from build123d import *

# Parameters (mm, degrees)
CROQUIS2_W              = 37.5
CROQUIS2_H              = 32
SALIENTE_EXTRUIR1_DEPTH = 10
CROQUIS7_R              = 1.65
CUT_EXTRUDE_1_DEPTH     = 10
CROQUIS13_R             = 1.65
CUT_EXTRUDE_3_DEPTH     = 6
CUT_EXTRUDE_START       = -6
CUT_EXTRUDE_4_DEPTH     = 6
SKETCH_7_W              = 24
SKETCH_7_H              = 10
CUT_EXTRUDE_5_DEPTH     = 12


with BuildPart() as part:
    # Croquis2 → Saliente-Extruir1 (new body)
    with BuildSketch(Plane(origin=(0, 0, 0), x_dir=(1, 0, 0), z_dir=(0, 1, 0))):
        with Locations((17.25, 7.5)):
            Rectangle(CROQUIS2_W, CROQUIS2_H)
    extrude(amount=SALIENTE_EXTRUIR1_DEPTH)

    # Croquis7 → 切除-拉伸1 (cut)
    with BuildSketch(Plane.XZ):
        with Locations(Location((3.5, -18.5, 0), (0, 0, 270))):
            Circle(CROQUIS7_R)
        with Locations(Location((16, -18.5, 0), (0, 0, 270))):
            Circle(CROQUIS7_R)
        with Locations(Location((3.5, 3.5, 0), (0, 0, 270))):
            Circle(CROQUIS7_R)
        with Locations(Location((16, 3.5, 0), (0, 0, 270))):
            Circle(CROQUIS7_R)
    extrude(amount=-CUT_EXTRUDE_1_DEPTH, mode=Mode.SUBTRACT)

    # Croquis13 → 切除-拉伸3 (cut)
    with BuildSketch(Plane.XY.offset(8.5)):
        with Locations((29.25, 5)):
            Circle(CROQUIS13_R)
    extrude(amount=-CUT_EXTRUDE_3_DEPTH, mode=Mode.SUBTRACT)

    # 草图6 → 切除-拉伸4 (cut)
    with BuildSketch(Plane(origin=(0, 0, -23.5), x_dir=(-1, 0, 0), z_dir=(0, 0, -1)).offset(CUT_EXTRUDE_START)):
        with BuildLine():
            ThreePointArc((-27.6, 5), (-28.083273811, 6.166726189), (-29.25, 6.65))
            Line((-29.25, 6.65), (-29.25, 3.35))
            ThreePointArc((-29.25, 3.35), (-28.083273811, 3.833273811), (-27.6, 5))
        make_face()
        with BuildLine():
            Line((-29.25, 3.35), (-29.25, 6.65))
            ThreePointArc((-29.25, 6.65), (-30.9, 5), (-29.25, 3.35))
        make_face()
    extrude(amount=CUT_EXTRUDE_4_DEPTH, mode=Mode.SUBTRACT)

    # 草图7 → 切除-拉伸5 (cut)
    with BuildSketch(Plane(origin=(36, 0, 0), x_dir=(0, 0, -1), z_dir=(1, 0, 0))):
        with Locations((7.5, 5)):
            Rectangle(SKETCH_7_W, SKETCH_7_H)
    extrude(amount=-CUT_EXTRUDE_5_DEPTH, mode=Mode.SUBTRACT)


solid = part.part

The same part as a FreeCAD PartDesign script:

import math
import FreeCAD as App
import Part
import Sketcher

V = App.Vector
Q = App.Units.Quantity


def add_polygon(sketch, points):
    """Adds a closed chain of lines whose ends are joined by coincident constraints."""
    first, n = sketch.GeometryCount, len(points)
    for a, b in zip(points, points[1:] + points[:1]):
        sketch.addGeometry(Part.LineSegment(App.Vector(*a, 0), App.Vector(*b, 0)), False)
    for i in range(n):
        sketch.addConstraint(Sketcher.Constraint("Coincident", first + i, 2, first + (i + 1) % n, 1))

doc = App.newDocument("Part")
body = doc.addObject("PartDesign::Body", "Body")

# Sketch on XZ plane
sketch1 = doc.addObject("Sketcher::SketchObject", "Sketch")
body.addObject(sketch1)
sketch1.AttachmentSupport = (doc.XZ_Plane, [""])
sketch1.MapMode = "FlatFace"
add_polygon(sketch1, [(-2, -24), (-2, 8), (36, 8), (36, -24)])  # lines 0-3
sketch1.addConstraint([
    Sketcher.Constraint("Vertical", 0),
    Sketcher.Constraint("Horizontal", 1),
    Sketcher.Constraint("Vertical", 2),
    Sketcher.Constraint("Horizontal", 3),
    Sketcher.Constraint("DistanceY", 0, 1, 0, 2, Q("32 mm")),
    Sketcher.Constraint("DistanceX", 1, 1, 1, 2, Q("37.5 mm")),
    Sketcher.Constraint("DistanceX", -1, 1, 1, 2, Q("36 mm")),
    Sketcher.Constraint("DistanceY", -1, 1, 0, 2, Q("8.5 mm")),
])
pad1 = doc.addObject("PartDesign::Pad", "Pad")
body.addObject(pad1)
pad1.Profile = sketch1
pad1.Length = 10
pad1.Reversed = True

# Sketch on XZ plane
sketch2 = doc.addObject("Sketcher::SketchObject", "Sketch001")
body.addObject(sketch2)
sketch2.AttachmentSupport = (doc.XZ_Plane, [""])
sketch2.MapMode = "FlatFace"
sketch2.addGeometry([
    Part.Circle(V(3.5, -18.5, 0), V(0, 0, 1), 1.6),
    Part.Circle(V(16, -18.5, 0), V(0, 0, 1), 1.6),
    Part.Circle(V(3.5, 3.5, 0), V(0, 0, 1), 1.6),
    Part.Circle(V(16, 3.5, 0), V(0, 0, 1), 1.6),
], False)
sketch2.addConstraint([
    Sketcher.Constraint("Equal", 0, 1),
    Sketcher.Constraint("Equal", 1, 2),
    Sketcher.Constraint("Equal", 2, 3),
    Sketcher.Constraint("Horizontal", 0, 3, 1, 3),
    Sketcher.Constraint("Horizontal", 2, 3, 3, 3),
    Sketcher.Constraint("Vertical", 0, 3, 2, 3),
    Sketcher.Constraint("Vertical", 1, 3, 3, 3),
    Sketcher.Constraint("Diameter", 0, Q("3.3 mm")),
    Sketcher.Constraint("DistanceX", -1, 1, 1, 3, Q("16 mm")),
    Sketcher.Constraint("DistanceY", 0, 3, 2, 3, Q("22 mm")),
    Sketcher.Constraint("DistanceX", -1, 1, 0, 3, Q("3.5 mm")),
    Sketcher.Constraint("DistanceY", 0, 3, -1, 1, Q("18.5 mm")),
])
pocket1 = doc.addObject("PartDesign::Pocket", "Pocket")
body.addObject(pocket1)
pocket1.Profile = sketch2
pocket1.Length = 10

# Sketch on XY plane
sketch3 = doc.addObject("Sketcher::SketchObject", "Sketch002")
body.addObject(sketch3)
sketch3.AttachmentSupport = (doc.XY_Plane, [""])
sketch3.MapMode = "FlatFace"
sketch3.AttachmentOffset = App.Placement(V(0, 0, 8.5), App.Rotation())
sketch3.addGeometry(Part.Circle(V(29.2, 5, 0), V(0, 0, 1), 1.6), False)
sketch3.addConstraint([
    Sketcher.Constraint("Diameter", 0, Q("3.3 mm")),
    Sketcher.Constraint("DistanceY", -1, 1, 0, 3, Q("5 mm")),
    Sketcher.Constraint("DistanceX", -1, 1, 0, 3, Q("29.25 mm")),
])
pocket2 = doc.addObject("PartDesign::Pocket", "Pocket001")
body.addObject(pocket2)
pocket2.Profile = sketch3
pocket2.Length = 6

# Sketch on XY plane
sketch4 = doc.addObject("Sketcher::SketchObject", "Sketch003")
body.addObject(sketch4)
sketch4.AttachmentSupport = (doc.XY_Plane, [""])
sketch4.MapMode = "FlatFace"
sketch4.AttachmentOffset = App.Placement(V(0, 0, -17.5), App.Rotation())
sketch4.addGeometry([
    Part.ArcOfCircle(Part.Circle(V(29.2, 5, 0), V(0, 0, 1), 1.6), math.radians(90), math.radians(180)),
    Part.ArcOfCircle(Part.Circle(V(29.2, 5, 0), V(0, 0, 1), 1.6), math.radians(-90), math.radians(90)),
    Part.ArcOfCircle(Part.Circle(V(29.2, 5, 0), V(0, 0, 1), 1.6), math.radians(180), math.radians(270)),
], False)
sketch4.addConstraint([
    Sketcher.Constraint("Tangent", 0, 1, 1, 2),
    Sketcher.Constraint("Tangent", 1, 1, 2, 2),
    Sketcher.Constraint("Tangent", 2, 1, 0, 2),
    Sketcher.Constraint("Horizontal", 1, 3, 2, 1),
    Sketcher.Constraint("Vertical", 2, 3, 0, 1),
    Sketcher.Constraint("Vertical", 0, 1, 1, 1),
    Sketcher.Constraint("Radius", 0, Q("1.65 mm")),
    Sketcher.Constraint("DistanceY", -1, 1, 0, 3, Q("5 mm")),
    Sketcher.Constraint("DistanceX", -1, 1, 2, 1, Q("27.6 mm")),
])
pocket3 = doc.addObject("PartDesign::Pocket", "Pocket002")
body.addObject(pocket3)
pocket3.Profile = sketch4
pocket3.Length = 6

# Sketch on YZ plane
sketch5 = doc.addObject("Sketcher::SketchObject", "Sketch004")
body.addObject(sketch5)
sketch5.AttachmentSupport = (doc.YZ_Plane, [""])
sketch5.MapMode = "FlatFace"
sketch5.AttachmentOffset = App.Placement(V(0, 0, 36), App.Rotation())
add_polygon(sketch5, [(10, 4), (0, 4), (0, -20), (10, -20)])  # lines 0-3
sketch5.addConstraint([
    Sketcher.Constraint("Horizontal", 0),
    Sketcher.Constraint("Vertical", 1),
    Sketcher.Constraint("Horizontal", 2),
    Sketcher.Constraint("Vertical", 3),
    Sketcher.Constraint("PointOnObject", 0, 2, -2),
    Sketcher.Constraint("DistanceX", 0, 2, 0, 1, Q("10 mm")),
    Sketcher.Constraint("DistanceY", 1, 2, 1, 1, Q("24 mm")),
    Sketcher.Constraint("DistanceY", -1, 1, 0, 2, Q("4.5 mm")),
])
pocket4 = doc.addObject("PartDesign::Pocket", "Pocket003")
body.addObject(pocket4)
pocket4.Profile = sketch5
pocket4.Length = 12

doc.recompute()
